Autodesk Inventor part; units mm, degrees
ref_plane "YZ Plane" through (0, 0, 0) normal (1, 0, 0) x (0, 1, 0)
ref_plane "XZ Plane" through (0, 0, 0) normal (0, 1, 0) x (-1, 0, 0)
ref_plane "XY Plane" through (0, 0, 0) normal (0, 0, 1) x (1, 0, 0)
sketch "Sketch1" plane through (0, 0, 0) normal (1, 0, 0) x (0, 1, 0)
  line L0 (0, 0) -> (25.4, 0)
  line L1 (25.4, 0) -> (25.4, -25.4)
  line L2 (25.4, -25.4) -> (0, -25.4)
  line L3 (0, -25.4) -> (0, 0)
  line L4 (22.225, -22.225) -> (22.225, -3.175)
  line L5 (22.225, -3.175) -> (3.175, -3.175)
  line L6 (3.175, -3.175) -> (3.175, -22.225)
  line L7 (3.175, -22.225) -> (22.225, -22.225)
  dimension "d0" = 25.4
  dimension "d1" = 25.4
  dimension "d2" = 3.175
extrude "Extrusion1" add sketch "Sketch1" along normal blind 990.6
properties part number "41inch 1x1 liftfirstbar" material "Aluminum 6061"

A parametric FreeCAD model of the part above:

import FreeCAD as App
import Part
import Sketcher
from FreeCAD import Vector
Q = App.Units.Quantity


def add_polygon(sketch, points):
    """Adds a closed chain of lines whose ends are joined by coincident constraints."""
    first, n = sketch.GeometryCount, len(points)
    for a, b in zip(points, points[1:] + points[:1]):
        sketch.addGeometry(Part.LineSegment(App.Vector(*a, 0), App.Vector(*b, 0)), False)
    for i in range(n):
        sketch.addConstraint(Sketcher.Constraint("Coincident", first + i, 2, first + (i + 1) % n, 1))

doc = App.newDocument("Part")
params = doc.addObject("Spreadsheet::Sheet", "Params")
for row, (alias, value) in enumerate([
    ("sketch1_width", "1 in"),
    ("pad1_length", "39 in"),
], start=1):
    params.set(f"A{row}", alias)
    params.set(f"B{row}", "=" + value)
    params.setAlias(f"B{row}", alias)

body = doc.addObject("PartDesign::Body", "Body")

# Sketch on YZ plane
sketch1 = doc.addObject("Sketcher::SketchObject", "Sketch")
body.addObject(sketch1)
sketch1.AttachmentSupport = (doc.YZ_Plane, [""])
sketch1.MapMode = "FlatFace"
add_polygon(sketch1, [(25, 0), (0, 0), (0, -25), (25, -25)])  # lines 0-3
add_polygon(sketch1, [(22, -3), (22, -22), (3, -22), (3, -3)])  # lines 4-7
sketch1.addConstraint([
    Sketcher.Constraint("Horizontal", 0),
    Sketcher.Constraint("Vertical", 1),
    Sketcher.Constraint("Horizontal", 2),
    Sketcher.Constraint("Vertical", 3),
    Sketcher.Constraint("Vertical", 4),
    Sketcher.Constraint("Horizontal", 5),
    Sketcher.Constraint("Vertical", 6),
    Sketcher.Constraint("Horizontal", 7),
    Sketcher.Constraint("Coincident", 0, 2, -1, 1),
    Sketcher.Constraint("Equal", 2, 1),
    Sketcher.Constraint("Equal", 7, 4),
    Sketcher.Constraint("DistanceX", 0, 2, 0, 1, Q("1 in")),
    Sketcher.Constraint("DistanceX", -1, 1, 5, 2, Q("0.125 in")),
    Sketcher.Constraint("DistanceY", 6, 2, -1, 1, Q("0.125 in")),
    Sketcher.Constraint("DistanceX", 4, 2, 2, 2, Q("0.125 in")),
])
sketch1.setExpression("Constraints[19]", "Params.sketch1_width")
pad1 = doc.addObject("PartDesign::Pad", "Pad")
body.addObject(pad1)
pad1.Profile = sketch1
pad1.setExpression("Length", "Params.pad1_length")

doc.recompute()
